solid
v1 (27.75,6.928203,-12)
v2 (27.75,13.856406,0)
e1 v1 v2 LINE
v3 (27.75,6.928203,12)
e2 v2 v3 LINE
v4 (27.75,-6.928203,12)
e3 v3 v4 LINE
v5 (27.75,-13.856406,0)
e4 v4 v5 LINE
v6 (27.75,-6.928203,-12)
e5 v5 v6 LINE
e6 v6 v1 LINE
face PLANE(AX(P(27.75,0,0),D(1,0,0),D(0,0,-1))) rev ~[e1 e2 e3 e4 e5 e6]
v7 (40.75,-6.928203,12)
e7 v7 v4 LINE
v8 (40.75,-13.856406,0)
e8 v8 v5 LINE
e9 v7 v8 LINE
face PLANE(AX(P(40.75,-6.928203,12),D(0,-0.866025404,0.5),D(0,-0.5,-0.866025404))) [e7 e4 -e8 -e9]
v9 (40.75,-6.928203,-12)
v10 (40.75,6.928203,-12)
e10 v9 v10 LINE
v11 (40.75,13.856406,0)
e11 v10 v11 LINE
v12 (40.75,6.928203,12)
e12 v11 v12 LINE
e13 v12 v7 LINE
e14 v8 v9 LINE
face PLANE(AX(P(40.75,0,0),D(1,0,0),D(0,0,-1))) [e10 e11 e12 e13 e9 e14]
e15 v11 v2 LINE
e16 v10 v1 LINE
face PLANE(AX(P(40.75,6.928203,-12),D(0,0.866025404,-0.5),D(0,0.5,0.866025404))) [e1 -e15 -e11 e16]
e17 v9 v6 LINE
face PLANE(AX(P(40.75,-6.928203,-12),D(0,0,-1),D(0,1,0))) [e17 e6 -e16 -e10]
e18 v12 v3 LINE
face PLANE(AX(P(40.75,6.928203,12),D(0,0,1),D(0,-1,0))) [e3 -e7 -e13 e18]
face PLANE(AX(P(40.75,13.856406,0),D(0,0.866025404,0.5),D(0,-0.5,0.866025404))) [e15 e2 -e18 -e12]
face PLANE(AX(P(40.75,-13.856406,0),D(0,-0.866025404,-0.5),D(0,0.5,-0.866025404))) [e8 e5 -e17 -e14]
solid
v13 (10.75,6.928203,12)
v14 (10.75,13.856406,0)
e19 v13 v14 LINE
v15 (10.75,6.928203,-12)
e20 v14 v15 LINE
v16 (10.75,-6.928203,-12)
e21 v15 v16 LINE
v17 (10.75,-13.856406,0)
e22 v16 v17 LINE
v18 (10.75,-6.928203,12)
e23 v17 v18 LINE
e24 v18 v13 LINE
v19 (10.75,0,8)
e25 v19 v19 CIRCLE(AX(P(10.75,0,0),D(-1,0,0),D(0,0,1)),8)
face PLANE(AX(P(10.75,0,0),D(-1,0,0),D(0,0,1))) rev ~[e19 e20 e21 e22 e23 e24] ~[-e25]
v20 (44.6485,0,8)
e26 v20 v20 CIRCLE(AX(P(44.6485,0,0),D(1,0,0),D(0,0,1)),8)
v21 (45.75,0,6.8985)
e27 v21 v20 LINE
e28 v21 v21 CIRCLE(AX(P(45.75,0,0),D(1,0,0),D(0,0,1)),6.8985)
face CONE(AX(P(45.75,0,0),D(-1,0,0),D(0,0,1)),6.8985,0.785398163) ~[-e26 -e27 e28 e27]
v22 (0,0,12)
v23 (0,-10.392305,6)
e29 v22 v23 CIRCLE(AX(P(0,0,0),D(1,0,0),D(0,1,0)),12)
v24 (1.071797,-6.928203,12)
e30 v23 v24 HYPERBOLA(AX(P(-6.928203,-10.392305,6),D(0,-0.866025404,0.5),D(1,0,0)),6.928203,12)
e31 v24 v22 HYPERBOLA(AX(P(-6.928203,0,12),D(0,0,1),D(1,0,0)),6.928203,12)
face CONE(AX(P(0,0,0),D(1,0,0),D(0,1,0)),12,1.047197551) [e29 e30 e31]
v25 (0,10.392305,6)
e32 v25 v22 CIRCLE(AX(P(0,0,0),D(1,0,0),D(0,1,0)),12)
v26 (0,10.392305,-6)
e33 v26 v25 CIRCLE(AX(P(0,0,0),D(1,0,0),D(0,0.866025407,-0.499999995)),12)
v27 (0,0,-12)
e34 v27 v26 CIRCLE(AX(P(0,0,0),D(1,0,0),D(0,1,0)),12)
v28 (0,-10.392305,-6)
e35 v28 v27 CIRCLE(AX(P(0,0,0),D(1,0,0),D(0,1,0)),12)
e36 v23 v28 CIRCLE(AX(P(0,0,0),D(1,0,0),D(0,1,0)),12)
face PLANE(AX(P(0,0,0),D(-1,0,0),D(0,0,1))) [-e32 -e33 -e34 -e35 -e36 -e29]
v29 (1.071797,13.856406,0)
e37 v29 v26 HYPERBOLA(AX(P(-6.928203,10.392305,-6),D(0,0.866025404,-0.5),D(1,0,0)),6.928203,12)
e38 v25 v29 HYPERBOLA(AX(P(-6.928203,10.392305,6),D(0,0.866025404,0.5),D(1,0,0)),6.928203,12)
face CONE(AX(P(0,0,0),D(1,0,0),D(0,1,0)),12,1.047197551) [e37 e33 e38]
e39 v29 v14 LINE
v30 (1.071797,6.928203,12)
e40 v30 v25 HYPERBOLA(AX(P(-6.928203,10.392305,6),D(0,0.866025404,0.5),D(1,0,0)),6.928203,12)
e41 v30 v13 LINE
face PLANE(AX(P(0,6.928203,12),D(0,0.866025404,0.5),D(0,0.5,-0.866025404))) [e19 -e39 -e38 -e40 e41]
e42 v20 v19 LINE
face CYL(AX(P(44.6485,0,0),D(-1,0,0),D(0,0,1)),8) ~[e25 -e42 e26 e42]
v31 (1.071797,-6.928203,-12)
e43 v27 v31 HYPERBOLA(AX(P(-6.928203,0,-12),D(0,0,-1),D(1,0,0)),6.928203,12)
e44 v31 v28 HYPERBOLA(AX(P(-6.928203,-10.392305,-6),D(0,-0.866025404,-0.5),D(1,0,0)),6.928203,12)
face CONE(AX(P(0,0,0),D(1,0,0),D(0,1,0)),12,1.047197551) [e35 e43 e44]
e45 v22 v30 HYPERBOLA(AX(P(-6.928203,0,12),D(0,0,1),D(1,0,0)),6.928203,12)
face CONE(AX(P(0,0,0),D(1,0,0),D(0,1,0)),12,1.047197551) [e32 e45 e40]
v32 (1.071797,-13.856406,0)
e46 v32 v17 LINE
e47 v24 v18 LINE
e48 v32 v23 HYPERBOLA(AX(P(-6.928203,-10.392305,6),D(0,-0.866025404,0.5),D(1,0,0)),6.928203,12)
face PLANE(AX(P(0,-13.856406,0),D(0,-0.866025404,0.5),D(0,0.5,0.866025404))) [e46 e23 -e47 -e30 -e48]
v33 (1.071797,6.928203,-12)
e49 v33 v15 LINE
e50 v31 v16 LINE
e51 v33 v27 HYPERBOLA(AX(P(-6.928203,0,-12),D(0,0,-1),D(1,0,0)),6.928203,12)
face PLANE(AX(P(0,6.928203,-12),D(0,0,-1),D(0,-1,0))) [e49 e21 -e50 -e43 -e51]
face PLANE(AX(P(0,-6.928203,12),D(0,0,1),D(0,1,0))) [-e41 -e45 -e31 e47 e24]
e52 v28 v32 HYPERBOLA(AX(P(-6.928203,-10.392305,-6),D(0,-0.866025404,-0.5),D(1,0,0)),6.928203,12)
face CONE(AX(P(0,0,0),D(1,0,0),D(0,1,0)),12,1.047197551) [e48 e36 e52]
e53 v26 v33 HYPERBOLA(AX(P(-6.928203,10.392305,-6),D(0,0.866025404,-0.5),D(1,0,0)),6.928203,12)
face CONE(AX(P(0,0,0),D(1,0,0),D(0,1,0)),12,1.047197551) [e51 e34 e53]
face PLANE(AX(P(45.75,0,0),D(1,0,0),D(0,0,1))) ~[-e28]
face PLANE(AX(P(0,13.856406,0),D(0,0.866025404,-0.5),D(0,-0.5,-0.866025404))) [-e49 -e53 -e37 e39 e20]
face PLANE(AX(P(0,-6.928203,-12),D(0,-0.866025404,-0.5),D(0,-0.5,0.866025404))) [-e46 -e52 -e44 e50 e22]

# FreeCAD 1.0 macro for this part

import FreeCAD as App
import Part
import Sketcher
Q = App.Units.Quantity

doc = App.newDocument("Part")
body = doc.addObject("PartDesign::Body", "Body")

# Sketch on YZ plane
sketch1 = body.newObject("Sketcher::SketchObject", "Sketch")
sketch1.AttachmentSupport = (doc.getObject("YZ_Plane"), [""])
sketch1.MapMode = "FlatFace"
sketch1.addGeometry([
    Part.LineSegment(App.Vector(-6.928203, -12, 0), App.Vector(6.928203, -12, 0)),  # 0
    Part.LineSegment(App.Vector(6.928203, -12, 0), App.Vector(13.856406, 0, 0)),  # 1
    Part.LineSegment(App.Vector(13.856406, 0, 0), App.Vector(6.928203, 12, 0)),  # 2
    Part.LineSegment(App.Vector(6.928203, 12, 0), App.Vector(-6.928203, 12, 0)),  # 3
    Part.LineSegment(App.Vector(-6.928203, 12, 0), App.Vector(-13.856406, 0, 0)),  # 4
    Part.LineSegment(App.Vector(-13.856406, 0, 0), App.Vector(-6.928203, -12, 0)),  # 5
], False)
sketch1.addConstraint([
    Sketcher.Constraint("Coincident", 0, 2, 1, 1),
    Sketcher.Constraint("Coincident", 1, 2, 2, 1),
    Sketcher.Constraint("Coincident", 2, 2, 3, 1),
    Sketcher.Constraint("Coincident", 3, 2, 4, 1),
    Sketcher.Constraint("Coincident", 4, 2, 5, 1),
    Sketcher.Constraint("Coincident", 5, 2, 0, 1),
    Sketcher.Constraint("Horizontal", 0),
    Sketcher.Constraint("Horizontal", 3),
    Sketcher.Constraint("Symmetric", 0, 2, 3, 2, -1, 1),
    Sketcher.Constraint("Symmetric", 1, 2, 4, 2, -1, 1),
    Sketcher.Constraint("PointOnObject", 1, 2, -1),
    Sketcher.Constraint("Parallel", 2, 5),
    Sketcher.Constraint("Vertical", 0, 2, 2, 2),
    Sketcher.Constraint("Angle", 1, Q("60 deg")),
    Sketcher.Constraint("DistanceY", 0, 2, -1, 1, Q("12 mm")),
    Sketcher.Constraint("DistanceX", 0, 1, 0, 2, Q("13.856406 mm")),
])
pad1 = body.newObject("PartDesign::Pad", "Pad")
pad1.Profile = sketch1
pad1.Length = 10.75

# Sketch on XY plane
sketch2 = body.newObject("Sketcher::SketchObject", "Sketch001")
sketch2.AttachmentSupport = (doc.getObject("XY_Plane"), [""])
sketch2.MapMode = "FlatFace"
sketch2.addGeometry([
    Part.LineSegment(App.Vector(0, 0, 0), App.Vector(45.75, 0, 0)),  # 0
    Part.LineSegment(App.Vector(45.75, 0, 0), App.Vector(45.75, 6.8985, 0)),  # 1
    Part.LineSegment(App.Vector(45.75, 6.8985, 0), App.Vector(44.6485, 8, 0)),  # 2
    Part.LineSegment(App.Vector(44.6485, 8, 0), App.Vector(0, 8, 0)),  # 3
    Part.LineSegment(App.Vector(0, 8, 0), App.Vector(0, 0, 0)),  # 4
], False)
sketch2.addConstraint([
    Sketcher.Constraint("Coincident", 0, 2, 1, 1),
    Sketcher.Constraint("Coincident", 1, 2, 2, 1),
    Sketcher.Constraint("Coincident", 2, 2, 3, 1),
    Sketcher.Constraint("Coincident", 3, 2, 4, 1),
    Sketcher.Constraint("Coincident", 4, 2, 0, 1),
    Sketcher.Constraint("Horizontal", 0),
    Sketcher.Constraint("Vertical", 1),
    Sketcher.Constraint("Horizontal", 3),
    Sketcher.Constraint("Vertical", 4),
    Sketcher.Constraint("Coincident", 4, 2, -1, 1),
    Sketcher.Constraint("DistanceY", 4, 2, 4, 1, Q("8 mm")),
    Sketcher.Constraint("Angle", 2, Q("135 deg")),
    Sketcher.Constraint("DistanceX", 0, 1, 0, 2, Q("45.75 mm")),
    Sketcher.Constraint("DistanceX", 3, 2, 3, 1, Q("44.6485 mm")),
])
revolution = body.newObject("PartDesign::Revolution", "Revolution")
revolution.Profile = sketch2
revolution.ReferenceAxis = (sketch2, ["H_Axis"])
revolution.Angle = 360

# Sketch on XY plane
sketch3 = body.newObject("Sketcher::SketchObject", "Sketch002")
sketch3.AttachmentSupport = (doc.getObject("XY_Plane"), [""])
sketch3.MapMode = "FlatFace"
sketch3.addGeometry([
    Part.LineSegment(App.Vector(0, 12, 0), App.Vector(3.958548, 18.856406, 0)),  # 0
    Part.LineSegment(App.Vector(3.958548, 18.856406, 0), App.Vector(3.958548, 23.856406, 0)),  # 1
    Part.LineSegment(App.Vector(3.958548, 23.856406, 0), App.Vector(-10, 23.856406, 0)),  # 2
    Part.LineSegment(App.Vector(-10, 23.856406, 0), App.Vector(-10, 12, 0)),  # 3
    Part.LineSegment(App.Vector(-10, 12, 0), App.Vector(0, 12, 0)),  # 4
], False)
sketch3.addConstraint([
    Sketcher.Constraint("Coincident", 0, 2, 1, 1),
    Sketcher.Constraint("Coincident", 1, 2, 2, 1),
    Sketcher.Constraint("Coincident", 2, 2, 3, 1),
    Sketcher.Constraint("Coincident", 3, 2, 4, 1),
    Sketcher.Constraint("Coincident", 4, 2, 0, 1),
    Sketcher.Constraint("Vertical", 1),
    Sketcher.Constraint("Horizontal", 2),
    Sketcher.Constraint("Vertical", 3),
    Sketcher.Constraint("Horizontal", 4),
    Sketcher.Constraint("PointOnObject", 4, 2, -2),
    Sketcher.Constraint("DistanceX", 4, 1, 4, 2, Q("10 mm")),
    Sketcher.Constraint("DistanceY", 1, 1, 1, 2, Q("5 mm")),
    Sketcher.Constraint("Angle", 0, Q("60 deg")),
    Sketcher.Constraint("DistanceY", -1, 1, 3, 2, Q("12 mm")),
    Sketcher.Constraint("DistanceX", 2, 2, 2, 1, Q("13.958548 mm")),
])
groove = body.newObject("PartDesign::Groove", "Groove")
groove.Profile = sketch3
groove.ReferenceAxis = (sketch3, ["H_Axis"])
groove.Angle = 360
body2 = doc.addObject("PartDesign::Body", "Body001")

# Sketch on YZ plane
sketch4 = body2.newObject("Sketcher::SketchObject", "Sketch003")
sketch4.AttachmentSupport = (doc.getObject("YZ_Plane001"), [""])
sketch4.MapMode = "FlatFace"
sketch4.AttachmentOffset = App.Placement(App.Vector(0, 0, 40.75), App.Rotation())
sketch4.addGeometry([
    Part.LineSegment(App.Vector(13.856406, 0, 0), App.Vector(6.928203, 12, 0)),  # 0
    Part.LineSegment(App.Vector(6.928203, 12, 0), App.Vector(-6.928203, 12, 0)),  # 1
    Part.LineSegment(App.Vector(-6.928203, 12, 0), App.Vector(-13.856406, 0, 0)),  # 2
    Part.LineSegment(App.Vector(-13.856406, 0, 0), App.Vector(-6.928203, -12, 0)),  # 3
    Part.LineSegment(App.Vector(-6.928203, -12, 0), App.Vector(6.928203, -12, 0)),  # 4
    Part.LineSegment(App.Vector(6.928203, -12, 0), App.Vector(13.856406, 0, 0)),  # 5
], False)
sketch4.addConstraint([
    Sketcher.Constraint("Coincident", 0, 2, 1, 1),
    Sketcher.Constraint("Coincident", 1, 2, 2, 1),
    Sketcher.Constraint("Coincident", 2, 2, 3, 1),
    Sketcher.Constraint("Coincident", 3, 2, 4, 1),
    Sketcher.Constraint("Coincident", 4, 2, 5, 1),
    Sketcher.Constraint("Coincident", 5, 2, 0, 1),
    Sketcher.Constraint("Horizontal", 1),
    Sketcher.Constraint("Horizontal", 4),
    Sketcher.Constraint("Symmetric", 0, 2, 3, 2, -1, 1),
    Sketcher.Constraint("Symmetric", 2, 2, 5, 2, -1, 1),
    Sketcher.Constraint("PointOnObject", 2, 2, -1),
    Sketcher.Constraint("Parallel", 2, 5),
    Sketcher.Constraint("Vertical", 1, 2, 3, 2),
    Sketcher.Constraint("Angle", 0, Q("120 deg")),
    Sketcher.Constraint("DistanceY", -1, 1, 0, 2, Q("12 mm")),
    Sketcher.Constraint("DistanceX", 1, 2, 1, 1, Q("13.856406 mm")),
])
pad2 = body2.newObject("PartDesign::Pad", "Pad001")
pad2.Profile = sketch4
pad2.Length = 13
pad2.Reversed = True

doc.recompute()
